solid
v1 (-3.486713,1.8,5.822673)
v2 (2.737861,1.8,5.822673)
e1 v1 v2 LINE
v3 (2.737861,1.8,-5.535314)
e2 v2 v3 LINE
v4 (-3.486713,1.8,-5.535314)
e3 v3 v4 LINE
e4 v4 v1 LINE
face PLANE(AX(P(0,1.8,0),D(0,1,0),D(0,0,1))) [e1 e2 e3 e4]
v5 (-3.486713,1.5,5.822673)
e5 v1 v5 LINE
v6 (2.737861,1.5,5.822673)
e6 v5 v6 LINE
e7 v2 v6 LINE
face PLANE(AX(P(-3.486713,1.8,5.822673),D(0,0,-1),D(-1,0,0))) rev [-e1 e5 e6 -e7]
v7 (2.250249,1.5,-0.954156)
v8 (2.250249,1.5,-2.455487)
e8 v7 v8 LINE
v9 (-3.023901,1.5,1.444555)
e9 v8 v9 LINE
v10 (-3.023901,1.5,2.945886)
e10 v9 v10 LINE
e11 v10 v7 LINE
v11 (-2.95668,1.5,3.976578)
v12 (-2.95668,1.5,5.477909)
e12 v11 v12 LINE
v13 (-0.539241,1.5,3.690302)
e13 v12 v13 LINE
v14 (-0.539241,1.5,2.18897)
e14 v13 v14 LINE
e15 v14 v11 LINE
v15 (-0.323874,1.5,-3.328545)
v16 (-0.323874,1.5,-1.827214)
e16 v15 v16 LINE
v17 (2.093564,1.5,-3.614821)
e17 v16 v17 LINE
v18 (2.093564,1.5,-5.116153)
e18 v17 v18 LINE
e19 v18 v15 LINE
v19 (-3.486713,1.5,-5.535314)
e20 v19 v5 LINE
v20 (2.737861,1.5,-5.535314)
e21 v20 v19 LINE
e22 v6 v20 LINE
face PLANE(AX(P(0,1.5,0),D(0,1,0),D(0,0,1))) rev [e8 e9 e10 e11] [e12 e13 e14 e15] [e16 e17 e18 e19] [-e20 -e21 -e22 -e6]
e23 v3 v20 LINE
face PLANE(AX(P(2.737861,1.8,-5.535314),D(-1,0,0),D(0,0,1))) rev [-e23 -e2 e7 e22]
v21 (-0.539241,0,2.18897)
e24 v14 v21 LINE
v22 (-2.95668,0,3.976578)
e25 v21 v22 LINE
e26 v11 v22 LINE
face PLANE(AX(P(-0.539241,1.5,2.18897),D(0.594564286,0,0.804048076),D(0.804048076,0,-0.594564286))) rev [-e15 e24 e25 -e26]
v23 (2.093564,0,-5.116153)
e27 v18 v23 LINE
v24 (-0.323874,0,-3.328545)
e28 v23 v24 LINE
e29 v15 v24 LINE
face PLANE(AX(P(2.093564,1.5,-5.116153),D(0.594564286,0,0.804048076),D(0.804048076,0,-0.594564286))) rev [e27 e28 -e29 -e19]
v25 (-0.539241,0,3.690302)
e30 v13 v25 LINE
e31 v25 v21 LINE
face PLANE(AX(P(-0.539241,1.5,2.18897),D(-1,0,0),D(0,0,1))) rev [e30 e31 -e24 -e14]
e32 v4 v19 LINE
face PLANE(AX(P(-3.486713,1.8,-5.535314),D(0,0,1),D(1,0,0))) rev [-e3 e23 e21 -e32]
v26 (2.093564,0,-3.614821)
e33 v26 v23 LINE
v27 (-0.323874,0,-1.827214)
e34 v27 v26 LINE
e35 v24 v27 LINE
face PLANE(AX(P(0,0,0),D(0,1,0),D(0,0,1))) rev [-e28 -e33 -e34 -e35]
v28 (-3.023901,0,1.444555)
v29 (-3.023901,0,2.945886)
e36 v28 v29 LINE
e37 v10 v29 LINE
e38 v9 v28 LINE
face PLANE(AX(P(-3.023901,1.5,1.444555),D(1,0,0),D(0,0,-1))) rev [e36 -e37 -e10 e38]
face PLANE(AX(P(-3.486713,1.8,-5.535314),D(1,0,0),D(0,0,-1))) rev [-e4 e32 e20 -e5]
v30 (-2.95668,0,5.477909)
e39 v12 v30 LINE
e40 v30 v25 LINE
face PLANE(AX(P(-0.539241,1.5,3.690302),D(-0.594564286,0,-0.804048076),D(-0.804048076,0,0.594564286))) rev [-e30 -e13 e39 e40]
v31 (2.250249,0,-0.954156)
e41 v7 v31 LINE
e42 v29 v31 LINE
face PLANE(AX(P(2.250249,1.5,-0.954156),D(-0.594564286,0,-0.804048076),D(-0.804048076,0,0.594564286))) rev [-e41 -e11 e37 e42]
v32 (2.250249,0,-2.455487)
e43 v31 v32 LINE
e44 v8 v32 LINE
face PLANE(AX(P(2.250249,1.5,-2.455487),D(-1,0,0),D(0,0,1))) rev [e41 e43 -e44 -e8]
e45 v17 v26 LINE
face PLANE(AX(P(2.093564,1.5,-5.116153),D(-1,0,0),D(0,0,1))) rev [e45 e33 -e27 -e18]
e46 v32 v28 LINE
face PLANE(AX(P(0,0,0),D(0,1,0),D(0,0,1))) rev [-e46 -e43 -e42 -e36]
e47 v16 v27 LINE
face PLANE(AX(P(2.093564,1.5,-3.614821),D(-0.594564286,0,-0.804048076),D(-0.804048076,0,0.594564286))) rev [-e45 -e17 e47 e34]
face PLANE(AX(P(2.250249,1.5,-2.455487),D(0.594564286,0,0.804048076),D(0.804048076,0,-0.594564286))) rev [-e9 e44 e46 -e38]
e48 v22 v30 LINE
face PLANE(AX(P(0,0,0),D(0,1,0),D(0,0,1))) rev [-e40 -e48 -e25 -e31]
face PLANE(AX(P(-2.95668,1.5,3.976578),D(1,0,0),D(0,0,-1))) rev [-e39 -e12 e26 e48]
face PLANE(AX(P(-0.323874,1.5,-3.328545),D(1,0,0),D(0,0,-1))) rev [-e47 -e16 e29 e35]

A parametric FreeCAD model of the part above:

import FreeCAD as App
import Part
import Sketcher
from FreeCAD import Vector
Q = App.Units.Quantity


def add_polygon(sketch, points):
    """Adds a closed chain of lines whose ends are joined by coincident constraints."""
    first, n = sketch.GeometryCount, len(points)
    for a, b in zip(points, points[1:] + points[:1]):
        sketch.addGeometry(Part.LineSegment(App.Vector(*a, 0), App.Vector(*b, 0)), False)
    for i in range(n):
        sketch.addConstraint(Sketcher.Constraint("Coincident", first + i, 2, first + (i + 1) % n, 1))

doc = App.newDocument("Part")
body = doc.addObject("PartDesign::Body", "Body")

# Sketch on XZ plane
sketch1 = body.newObject("Sketcher::SketchObject", "Sketch")
sketch1.AttachmentSupport = (doc.getObject("XZ_Plane"), [""])
sketch1.MapMode = "FlatFace"
add_polygon(sketch1, [(2.3, -1), (2.3, -2.5), (-3, 1.4), (-3, 2.9)])  # lines 0-3
sketch1.addConstraint([
    Sketcher.Constraint("Vertical", 0),
    Sketcher.Constraint("Vertical", 2),
    Sketcher.Constraint("Parallel", 1, 3),
    Sketcher.Constraint("DistanceY", 0, 2, 0, 1, Q("1.501332 mm")),
    Sketcher.Constraint("DistanceX", 1, 2, -1, 1, Q("3.023901 mm")),
    Sketcher.Constraint("DistanceX", -1, 1, 0, 2, Q("2.250249 mm")),
    Sketcher.Constraint("DistanceY", 0, 2, 1, 2, Q("3.900042 mm")),
    Sketcher.Constraint("DistanceY", 0, 2, -1, 1, Q("2.455487 mm")),
])
pad1 = body.newObject("PartDesign::Pad", "Pad")
pad1.Profile = sketch1
pad1.Length = 1.5
pad1.Reversed = True
body2 = doc.addObject("PartDesign::Body", "Body001")

# Sketch on XZ plane
sketch2 = body2.newObject("Sketcher::SketchObject", "Sketch001")
sketch2.AttachmentSupport = (doc.getObject("XZ_Plane001"), [""])
sketch2.MapMode = "FlatFace"
add_polygon(sketch2, [(2.1, -3.6), (2.1, -5.1), (-0.3, -3.3), (-0.3, -1.8)])  # lines 0-3
sketch2.addConstraint([
    Sketcher.Constraint("Vertical", 0),
    Sketcher.Constraint("Vertical", 2),
    Sketcher.Constraint("Parallel", 1, 3),
    Sketcher.Constraint("DistanceY", 0, 2, 0, 1, Q("1.501332 mm")),
    Sketcher.Constraint("DistanceY", 3, 2, -1, 1, Q("3.614821 mm")),
    Sketcher.Constraint("DistanceX", 1, 2, 0, 2, Q("2.417438 mm")),
    Sketcher.Constraint("DistanceY", 0, 2, 2, 2, Q("3.288939 mm")),
    Sketcher.Constraint("DistanceX", -1, 1, 0, 2, Q("2.093564 mm")),
])
pad2 = body2.newObject("PartDesign::Pad", "Pad001")
pad2.Profile = sketch2
pad2.Length = 1.5
pad2.Reversed = True
body3 = doc.addObject("PartDesign::Body", "Body002")

# Sketch on XZ plane
sketch3 = body3.newObject("Sketcher::SketchObject", "Sketch002")
sketch3.AttachmentSupport = (doc.getObject("XZ_Plane002"), [""])
sketch3.MapMode = "FlatFace"
add_polygon(sketch3, [(-0.5, 3.7), (-0.5, 2.2), (-3, 4), (-3, 5.5)])  # lines 0-3
sketch3.addConstraint([
    Sketcher.Constraint("Vertical", 0),
    Sketcher.Constraint("Vertical", 2),
    Sketcher.Constraint("Parallel", 1, 3),
    Sketcher.Constraint("DistanceY", 0, 2, 0, 1, Q("1.501332 mm")),
    Sketcher.Constraint("DistanceY", -1, 1, 3, 2, Q("3.690302 mm")),
    Sketcher.Constraint("DistanceX", 0, 2, -1, 1, Q("0.539241 mm")),
    Sketcher.Constraint("DistanceX", 1, 2, -1, 1, Q("2.95668 mm")),
    Sketcher.Constraint("DistanceY", -1, 1, 2, 2, Q("5.477909 mm")),
])
pad3 = body3.newObject("PartDesign::Pad", "Pad002")
pad3.Profile = sketch3
pad3.Length = 1.5
pad3.Reversed = True
body.AllowCompound = True
doc.recompute()

boolean = body.newObject("PartDesign::Boolean", "Boolean")
boolean.Type = "Fuse"
boolean.addObjects([body2])
doc.recompute()

boolean2 = body.newObject("PartDesign::Boolean", "Boolean001")
boolean2.Type = "Fuse"
boolean2.addObjects([body3])

# Sketch on XZ plane
sketch4 = body.newObject("Sketcher::SketchObject", "Sketch003")
sketch4.AttachmentSupport = (doc.getObject("XZ_Plane"), [""])
sketch4.MapMode = "FlatFace"
sketch4.AttachmentOffset = App.Placement(Vector(0, 0, -1.5), App.Rotation())
add_polygon(sketch4, [(-3, -6), (-3, 6), (3, 6), (3, -6)])  # lines 0-3
sketch4.addConstraint([
    Sketcher.Constraint("Vertical", 0),
    Sketcher.Constraint("Horizontal", 1),
    Sketcher.Constraint("Vertical", 2),
    Sketcher.Constraint("Horizontal", 3),
    Sketcher.Constraint("DistanceX", 1, 1, 1, 2, Q("6.224574 mm")),
    Sketcher.Constraint("DistanceY", 0, 1, 0, 2, Q("11.357987 mm")),
    Sketcher.Constraint("DistanceX", -1, 1, 1, 2, Q("2.737861 mm")),
    Sketcher.Constraint("DistanceY", -1, 1, 0, 2, Q("5.822673 mm")),
])
pad4 = body.newObject("PartDesign::Pad", "Pad003")
pad4.Profile = sketch4
pad4.Length = 0.3
pad4.Reversed = True

doc.recompute()
